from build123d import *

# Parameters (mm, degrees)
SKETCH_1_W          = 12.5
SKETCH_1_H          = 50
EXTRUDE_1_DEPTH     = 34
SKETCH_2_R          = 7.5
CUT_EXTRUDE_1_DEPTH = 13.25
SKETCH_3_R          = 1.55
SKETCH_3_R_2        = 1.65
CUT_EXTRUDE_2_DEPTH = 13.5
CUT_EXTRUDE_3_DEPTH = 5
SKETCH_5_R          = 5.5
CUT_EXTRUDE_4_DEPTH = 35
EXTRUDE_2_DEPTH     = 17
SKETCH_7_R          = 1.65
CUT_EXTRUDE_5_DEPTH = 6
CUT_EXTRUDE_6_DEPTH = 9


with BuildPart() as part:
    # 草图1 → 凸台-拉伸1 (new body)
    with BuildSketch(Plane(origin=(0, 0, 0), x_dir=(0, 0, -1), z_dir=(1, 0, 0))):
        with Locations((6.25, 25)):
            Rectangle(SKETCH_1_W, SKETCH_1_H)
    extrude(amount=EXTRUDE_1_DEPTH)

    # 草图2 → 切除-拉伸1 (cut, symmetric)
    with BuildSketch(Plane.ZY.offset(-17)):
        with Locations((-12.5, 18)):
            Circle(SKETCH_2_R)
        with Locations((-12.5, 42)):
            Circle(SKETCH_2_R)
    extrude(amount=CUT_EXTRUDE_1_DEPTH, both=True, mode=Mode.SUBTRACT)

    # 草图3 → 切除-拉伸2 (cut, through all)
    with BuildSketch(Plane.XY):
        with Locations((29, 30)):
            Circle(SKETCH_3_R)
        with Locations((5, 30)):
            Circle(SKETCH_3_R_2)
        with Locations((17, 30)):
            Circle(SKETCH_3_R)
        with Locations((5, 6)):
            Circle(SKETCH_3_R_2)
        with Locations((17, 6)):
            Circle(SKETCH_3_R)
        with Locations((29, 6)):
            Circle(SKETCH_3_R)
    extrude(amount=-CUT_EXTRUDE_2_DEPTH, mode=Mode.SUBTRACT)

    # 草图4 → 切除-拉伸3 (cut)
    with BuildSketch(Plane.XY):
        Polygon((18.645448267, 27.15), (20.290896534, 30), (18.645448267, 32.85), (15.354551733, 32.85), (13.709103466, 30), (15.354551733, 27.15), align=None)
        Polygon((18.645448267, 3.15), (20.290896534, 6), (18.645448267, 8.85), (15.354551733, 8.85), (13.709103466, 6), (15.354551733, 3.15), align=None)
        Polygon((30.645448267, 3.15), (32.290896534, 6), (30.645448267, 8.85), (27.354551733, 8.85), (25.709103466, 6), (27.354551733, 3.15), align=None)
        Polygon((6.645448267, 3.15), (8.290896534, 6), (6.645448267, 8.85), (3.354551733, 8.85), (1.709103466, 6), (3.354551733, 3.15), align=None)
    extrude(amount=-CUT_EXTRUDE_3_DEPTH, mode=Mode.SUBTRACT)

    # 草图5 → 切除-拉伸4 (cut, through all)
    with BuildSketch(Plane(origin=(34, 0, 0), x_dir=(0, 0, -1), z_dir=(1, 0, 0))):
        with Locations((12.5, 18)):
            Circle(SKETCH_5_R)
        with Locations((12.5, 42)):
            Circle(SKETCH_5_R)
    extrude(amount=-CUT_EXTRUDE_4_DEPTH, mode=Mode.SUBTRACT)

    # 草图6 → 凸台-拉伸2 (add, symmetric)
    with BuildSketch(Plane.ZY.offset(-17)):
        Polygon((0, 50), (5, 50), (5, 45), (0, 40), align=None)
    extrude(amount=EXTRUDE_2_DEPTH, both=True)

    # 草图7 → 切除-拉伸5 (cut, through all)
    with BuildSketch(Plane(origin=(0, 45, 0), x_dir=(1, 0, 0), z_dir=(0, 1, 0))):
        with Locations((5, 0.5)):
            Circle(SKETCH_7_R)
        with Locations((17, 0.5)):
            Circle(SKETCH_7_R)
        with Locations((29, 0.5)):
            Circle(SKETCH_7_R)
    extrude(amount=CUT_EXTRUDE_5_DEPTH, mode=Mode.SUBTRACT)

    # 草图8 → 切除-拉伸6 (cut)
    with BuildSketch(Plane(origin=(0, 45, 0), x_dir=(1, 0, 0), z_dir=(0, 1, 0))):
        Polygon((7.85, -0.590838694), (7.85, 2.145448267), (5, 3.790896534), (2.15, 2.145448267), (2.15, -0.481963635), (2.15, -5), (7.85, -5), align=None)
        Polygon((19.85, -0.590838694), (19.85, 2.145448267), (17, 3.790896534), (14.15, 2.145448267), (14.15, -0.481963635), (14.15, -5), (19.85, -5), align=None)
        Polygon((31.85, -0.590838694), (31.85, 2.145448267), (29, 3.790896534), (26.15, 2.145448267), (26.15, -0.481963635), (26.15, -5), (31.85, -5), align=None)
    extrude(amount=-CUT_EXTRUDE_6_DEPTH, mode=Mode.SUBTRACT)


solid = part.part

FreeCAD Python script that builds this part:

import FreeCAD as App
import Part
import Sketcher
Q = App.Units.Quantity


def add_polygon(sketch, points):
    """Adds a closed chain of lines whose ends are joined by coincident constraints."""
    first, n = sketch.GeometryCount, len(points)
    for a, b in zip(points, points[1:] + points[:1]):
        sketch.addGeometry(Part.LineSegment(App.Vector(*a, 0), App.Vector(*b, 0)), False)
    for i in range(n):
        sketch.addConstraint(Sketcher.Constraint("Coincident", first + i, 2, first + (i + 1) % n, 1))

doc = App.newDocument("Part")
params = doc.addObject("Spreadsheet::Sheet", "Params")
for row, (alias, value) in enumerate([
    ("sketch1_width", "50 mm"),
    ("sketch1_height", "12.5 mm"),
    ("pad1_length", "34 mm"),
    ("sketch2_diameter", "15 mm"),
    ("pocket1_length", "26.5 mm"),
    ("sketch3_diameter", "3.1 mm"),
    ("sketch3_diameter2", "3.3 mm"),
    ("pocket3_length", "5 mm"),
    ("sketch5_diameter", "11 mm"),
    ("sketch6_width", "10 mm"),
    ("sketch6_width2", "5 mm"),
    ("pad2_length", "34 mm"),
    ("sketch7_diameter", "3.3 mm"),
    ("sketch8_width", "5.7 mm"),
    ("pocket6_length", "9 mm"),
], start=1):
    params.set(f"A{row}", alias)
    params.set(f"B{row}", "=" + value)
    params.setAlias(f"B{row}", alias)

body = doc.addObject("PartDesign::Body", "Body")

# Sketch on YZ plane
sketch1 = doc.addObject("Sketcher::SketchObject", "Sketch")
body.addObject(sketch1)
sketch1.AttachmentSupport = (doc.YZ_Plane, [""])
sketch1.MapMode = "FlatFace"
add_polygon(sketch1, [(50, 0), (0, 0), (0, -12.5), (50, -12.5)])  # lines 0-3
sketch1.addConstraint([
    Sketcher.Constraint("Horizontal", 0),
    Sketcher.Constraint("Vertical", 1),
    Sketcher.Constraint("Horizontal", 2),
    Sketcher.Constraint("Vertical", 3),
    Sketcher.Constraint("Coincident", 0, 2, -1, 1),
    Sketcher.Constraint("DistanceX", 0, 2, 0, 1, 50.0),
    Sketcher.Constraint("DistanceY", 1, 2, 1, 1, 12.5),
])
sketch1.setExpression("Constraints[9]", "Params.sketch1_width")
sketch1.setExpression("Constraints[10]", "Params.sketch1_height")
pad1 = doc.addObject("PartDesign::Pad", "Pad")
body.addObject(pad1)
pad1.Profile = sketch1
pad1.setExpression("Length", "Params.pad1_length")

# Sketch on YZ plane
sketch2 = doc.addObject("Sketcher::SketchObject", "Sketch001")
body.addObject(sketch2)
sketch2.AttachmentSupport = (doc.YZ_Plane, [""])
sketch2.MapMode = "FlatFace"
sketch2.AttachmentOffset = App.Placement(App.Vector(0, 0, 17), App.Rotation())
sketch2.addGeometry([
    Part.Circle(App.Vector(18, -12.5, 0), App.Vector(0, 0, 1), 7.5),
    Part.Circle(App.Vector(42, -12.5, 0), App.Vector(0, 0, 1), 7.5),
], False)
sketch2.addConstraint([
    Sketcher.Constraint("Equal", 0, 1),
    Sketcher.Constraint("Horizontal", 0, 3, 1, 3),
    Sketcher.Constraint("Diameter", 0, 15.0),
    Sketcher.Constraint("DistanceX", -1, 1, 0, 3, 18.0),
    Sketcher.Constraint("DistanceX", -1, 1, 1, 3, 42.0),
    Sketcher.Constraint("DistanceY", 0, 3, -1, 1, 12.5),
])
sketch2.setExpression("Constraints[2]", "Params.sketch2_diameter")
pocket1 = doc.addObject("PartDesign::Pocket", "Pocket")
body.addObject(pocket1)
pocket1.Profile = sketch2
pocket1.setExpression("Length", "Params.pocket1_length")
pocket1.Midplane = True

# Sketch on XY plane
sketch3 = doc.addObject("Sketcher::SketchObject", "Sketch002")
body.addObject(sketch3)
sketch3.AttachmentSupport = (doc.XY_Plane, [""])
sketch3.MapMode = "FlatFace"
sketch3.addGeometry([
    Part.Circle(App.Vector(29, 30, 0), App.Vector(0, 0, 1), 1.55),  # 0
    Part.Circle(App.Vector(5, 30, 0), App.Vector(0, 0, 1), 1.65),  # 1
    Part.Circle(App.Vector(17, 30, 0), App.Vector(0, 0, 1), 1.55),  # 2
    Part.Circle(App.Vector(5, 6, 0), App.Vector(0, 0, 1), 1.65),  # 3
    Part.Circle(App.Vector(17, 6, 0), App.Vector(0, 0, 1), 1.55),  # 4
    Part.Circle(App.Vector(29, 6, 0), App.Vector(0, 0, 1), 1.55),  # 5
], False)
sketch3.addConstraint([
    Sketcher.Constraint("Equal", 0, 2),
    Sketcher.Constraint("Equal", 1, 3),
    Sketcher.Constraint("Equal", 2, 4),
    Sketcher.Constraint("Equal", 4, 5),
    Sketcher.Constraint("Horizontal", 0, 3, 1, 3),
    Sketcher.Constraint("Horizontal", 1, 3, 2, 3),
    Sketcher.Constraint("Horizontal", 3, 3, 4, 3),
    Sketcher.Constraint("Horizontal", 4, 3, 5, 3),
    Sketcher.Constraint("Vertical", 1, 3, 3, 3),
    Sketcher.Constraint("Vertical", 2, 3, 4, 3),
    Sketcher.Constraint("Vertical", 0, 3, 5, 3),
    Sketcher.Constraint("Diameter", 0, 3.1),
    Sketcher.Constraint("Diameter", 1, 3.3),
    Sketcher.Constraint("DistanceX", -1, 1, 0, 3, 29.0),
    Sketcher.Constraint("DistanceY", -1, 1, 0, 3, 30.0),
    Sketcher.Constraint("DistanceX", -1, 1, 1, 3, 5.0),
    Sketcher.Constraint("DistanceX", -1, 1, 2, 3, 17.0),
    Sketcher.Constraint("DistanceY", -1, 1, 3, 3, 6.0),
])
sketch3.setExpression("Constraints[11]", "Params.sketch3_diameter")
sketch3.setExpression("Constraints[12]", "Params.sketch3_diameter2")
pocket2 = doc.addObject("PartDesign::Pocket", "Pocket001")
body.addObject(pocket2)
pocket2.Profile = sketch3
pocket2.Type = "ThroughAll"

# Sketch on XY plane
sketch4 = doc.addObject("Sketcher::SketchObject", "Sketch003")
body.addObject(sketch4)
sketch4.AttachmentSupport = (doc.XY_Plane, [""])
sketch4.MapMode = "FlatFace"
add_polygon(sketch4, [(18.645448, 27.15), (20.290897, 30), (18.645448, 32.85), (15.354552, 32.85), (13.709103, 30), (15.354552, 27.15)])  # lines 0-5
add_polygon(sketch4, [(18.645448, 3.15), (20.290897, 6), (18.645448, 8.85), (15.354552, 8.85), (13.709103, 6), (15.354552, 3.15)])  # lines 6-11
add_polygon(sketch4, [(30.645448, 3.15), (32.290897, 6), (30.645448, 8.85), (27.354552, 8.85), (25.709103, 6), (27.354552, 3.15)])  # lines 12-17
add_polygon(sketch4, [(6.645448, 3.15), (8.290897, 6), (6.645448, 8.85), (3.354552, 8.85), (1.709103, 6), (3.354552, 3.15)])  # lines 18-23
sketch4.addConstraint([
    Sketcher.Constraint("Horizontal", 2),
    Sketcher.Constraint("Horizontal", 5),
    Sketcher.Constraint("Horizontal", 8),
    Sketcher.Constraint("Horizontal", 11),
    Sketcher.Constraint("Horizontal", 14),
    Sketcher.Constraint("Horizontal", 17),
    Sketcher.Constraint("Horizontal", 20),
    Sketcher.Constraint("Horizontal", 23),
    Sketcher.Constraint("Parallel", 0, 3),
    Sketcher.Constraint("Parallel", 1, 4),
    Sketcher.Constraint("Parallel", 3, 6),
    Sketcher.Constraint("Parallel", 4, 7),
    Sketcher.Constraint("Parallel", 6, 9),
    Sketcher.Constraint("Parallel", 7, 10),
    Sketcher.Constraint("Parallel", 9, 12),
    Sketcher.Constraint("Parallel", 10, 13),
    Sketcher.Constraint("Parallel", 12, 15),
    Sketcher.Constraint("Parallel", 13, 16),
    Sketcher.Constraint("Parallel", 15, 18),
    Sketcher.Constraint("Parallel", 16, 19),
    Sketcher.Constraint("Parallel", 18, 21),
    Sketcher.Constraint("Parallel", 19, 22),
    Sketcher.Constraint("Horizontal", 0, 2, 3, 2),
    Sketcher.Constraint("Horizontal", 6, 2, 9, 2),
    Sketcher.Constraint("Horizontal", 9, 2, 12, 2),
    Sketcher.Constraint("Horizontal", 8, 2, 13, 2),
    Sketcher.Constraint("Horizontal", 12, 2, 15, 2),
    Sketcher.Constraint("Horizontal", 11, 2, 16, 2),
    Sketcher.Constraint("Horizontal", 15, 2, 18, 2),
    Sketcher.Constraint("Horizontal", 14, 2, 19, 2),
    Sketcher.Constraint("Horizontal", 18, 2, 21, 2),
    Sketcher.Constraint("Horizontal", 17, 2, 22, 2),
    Sketcher.Constraint("Vertical", 2, 2, 4, 2),
    Sketcher.Constraint("Vertical", 1, 2, 5, 2),
    Sketcher.Constraint("Vertical", 0, 2, 6, 2),
    Sketcher.Constraint("Vertical", 5, 2, 7, 2),
    Sketcher.Constraint("Vertical", 4, 2, 8, 2),
    Sketcher.Constraint("Vertical", 8, 2, 10, 2),
    Sketcher.Constraint("Equal", 11, 14),
    Sketcher.Constraint("Equal", 17, 20),
    Sketcher.Constraint("Angle", 0, Q("60 deg")),
    Sketcher.Constraint("DistanceY", -1, 1, 0, 2, 30.0),
    Sketcher.Constraint("DistanceY", -1, 1, 6, 2, 6.0),
    Sketcher.Constraint("DistanceX", 6, 2, 12, 2, 12.0),
    Sketcher.Constraint("DistanceX", 19, 2, 7, 2, 12.0),
    Sketcher.Constraint("DistanceY", 4, 2, 2, 2, 5.7),
    Sketcher.Constraint("DistanceX", 2, 2, 2, 1, 3.290897),
    Sketcher.Constraint("DistanceX", -1, 1, 1, 2, 18.645448),
])
pocket3 = doc.addObject("PartDesign::Pocket", "Pocket002")
body.addObject(pocket3)
pocket3.Profile = sketch4
pocket3.setExpression("Length", "Params.pocket3_length")

# Sketch on YZ plane
sketch5 = doc.addObject("Sketcher::SketchObject", "Sketch004")
body.addObject(sketch5)
sketch5.AttachmentSupport = (doc.YZ_Plane, [""])
sketch5.MapMode = "FlatFace"
sketch5.AttachmentOffset = App.Placement(App.Vector(0, 0, 34), App.Rotation())
sketch5.addGeometry([
    Part.Circle(App.Vector(18, -12.5, 0), App.Vector(0, 0, 1), 5.5),
    Part.Circle(App.Vector(42, -12.5, 0), App.Vector(0, 0, 1), 5.5),
], False)
sketch5.addConstraint([
    Sketcher.Constraint("Equal", 0, 1),
    Sketcher.Constraint("Horizontal", 0, 3, 1, 3),
    Sketcher.Constraint("Diameter", 0, 11.0),
    Sketcher.Constraint("DistanceX", -1, 1, 0, 3, 18.0),
    Sketcher.Constraint("DistanceX", -1, 1, 1, 3, 42.0),
    Sketcher.Constraint("DistanceY", 0, 3, -1, 1, 12.5),
])
sketch5.setExpression("Constraints[2]", "Params.sketch5_diameter")
pocket4 = doc.addObject("PartDesign::Pocket", "Pocket003")
body.addObject(pocket4)
pocket4.Profile = sketch5
pocket4.Type = "ThroughAll"

# Sketch on YZ plane
sketch6 = doc.addObject("Sketcher::SketchObject", "Sketch005")
body.addObject(sketch6)
sketch6.AttachmentSupport = (doc.YZ_Plane, [""])
sketch6.MapMode = "FlatFace"
sketch6.AttachmentOffset = App.Placement(App.Vector(0, 0, 17), App.Rotation())
add_polygon(sketch6, [(50, 5), (50, 0), (40, 0), (45, 5)])  # lines 0-3
sketch6.addConstraint([
    Sketcher.Constraint("Vertical", 0),
    Sketcher.Constraint("Horizontal", 1),
    Sketcher.Constraint("Horizontal", 3),
    Sketcher.Constraint("PointOnObject", 0, 2, -1),
    Sketcher.Constraint("Equal", 3, 0),
    Sketcher.Constraint("DistanceX", 1, 2, 1, 1, 10.0),
    Sketcher.Constraint("DistanceX", 3, 1, 3, 2, 5.0),
    Sketcher.Constraint("DistanceX", -1, 1, 0, 2, 50.0),
])
sketch6.setExpression("Constraints[9]", "Params.sketch6_width")
sketch6.setExpression("Constraints[10]", "Params.sketch6_width2")
pad2 = doc.addObject("PartDesign::Pad", "Pad001")
body.addObject(pad2)
pad2.Profile = sketch6
pad2.setExpression("Length", "Params.pad2_length")
pad2.Midplane = True

# Sketch on XZ plane
sketch7 = doc.addObject("Sketcher::SketchObject", "Sketch006")
body.addObject(sketch7)
sketch7.AttachmentSupport = (doc.XZ_Plane, [""])
sketch7.MapMode = "FlatFace"
sketch7.AttachmentOffset = App.Placement(App.Vector(0, 0, -45), App.Rotation())
sketch7.addGeometry([
    Part.Circle(App.Vector(5, -0.5, 0), App.Vector(0, 0, 1), 1.65),
    Part.Circle(App.Vector(17, -0.5, 0), App.Vector(0, 0, 1), 1.65),
    Part.Circle(App.Vector(29, -0.5, 0), App.Vector(0, 0, 1), 1.65),
], False)
sketch7.addConstraint([
    Sketcher.Constraint("Equal", 0, 1),
    Sketcher.Constraint("Equal", 1, 2),
    Sketcher.Constraint("Horizontal", 0, 3, 1, 3),
    Sketcher.Constraint("Horizontal", 1, 3, 2, 3),
    Sketcher.Constraint("Diameter", 0, 3.3),
    Sketcher.Constraint("DistanceX", -1, 1, 0, 3, 5.0),
    Sketcher.Constraint("DistanceX", -1, 1, 1, 3, 17.0),
    Sketcher.Constraint("DistanceX", -1, 1, 2, 3, 29.0),
    Sketcher.Constraint("DistanceY", 0, 3, -1, 1, 0.5),
])
sketch7.setExpression("Constraints[4]", "Params.sketch7_diameter")
pocket5 = doc.addObject("PartDesign::Pocket", "Pocket004")
body.addObject(pocket5)
pocket5.Profile = sketch7
pocket5.Type = "ThroughAll"

# Sketch on XZ plane
sketch8 = doc.addObject("Sketcher::SketchObject", "Sketch007")
body.addObject(sketch8)
sketch8.AttachmentSupport = (doc.XZ_Plane, [""])
sketch8.MapMode = "FlatFace"
sketch8.AttachmentOffset = App.Placement(App.Vector(0, 0, -45), App.Rotation())
add_polygon(sketch8, [(7.85, -2.145448), (5, -3.790897), (2.15, -2.145448), (2.15, 5), (7.85, 5)])  # lines 0-4
add_polygon(sketch8, [(19.85, -2.145448), (17, -3.790897), (14.15, -2.145448), (14.15, 5), (19.85, 5)])  # lines 5-9
add_polygon(sketch8, [(31.85, -2.145448), (29, -3.790897), (26.15, -2.145448), (26.15, 5), (31.85, 5)])  # lines 10-14
sketch8.addConstraint([
    Sketcher.Constraint("Vertical", 2),
    Sketcher.Constraint("Horizontal", 3),
    Sketcher.Constraint("Vertical", 4),
    Sketcher.Constraint("Vertical", 7),
    Sketcher.Constraint("Horizontal", 8),
    Sketcher.Constraint("Vertical", 9),
    Sketcher.Constraint("Vertical", 12),
    Sketcher.Constraint("Horizontal", 13),
    Sketcher.Constraint("Vertical", 14),
    Sketcher.Constraint("Parallel", 0, 5),
    Sketcher.Constraint("Parallel", 1, 6),
    Sketcher.Constraint("Parallel", 5, 10),
    Sketcher.Constraint("Parallel", 6, 11),
    Sketcher.Constraint("Horizontal", 1, 2, 4, 2),
    Sketcher.Constraint("Horizontal", 0, 2, 5, 2),
    Sketcher.Constraint("Horizontal", 4, 2, 6, 2),
    Sketcher.Constraint("Horizontal", 3, 2, 7, 2),
    Sketcher.Constraint("Horizontal", 6, 2, 9, 2),
    Sketcher.Constraint("Horizontal", 5, 2, 10, 2),
    Sketcher.Constraint("Horizontal", 9, 2, 11, 2),
    Sketcher.Constraint("Horizontal", 8, 2, 12, 2),
    Sketcher.Constraint("Horizontal", 11, 2, 14, 2),
    Sketcher.Constraint("Equal", 0, 1),
    Sketcher.Constraint("Angle", 0, Q("-150 deg")),
    Sketcher.Constraint("DistanceX", 3, 1, 3, 2, 5.7),
    Sketcher.Constraint("DistanceX", -1, 1, 0, 2, 5.0),
    Sketcher.Constraint("DistanceY", -1, 1, 2, 2, 5.0),
    Sketcher.Constraint("DistanceX", -1, 1, 5, 2, 17.0),
    Sketcher.Constraint("DistanceX", -1, 1, 10, 2, 29.0),
    Sketcher.Constraint("DistanceY", 2, 1, 2, 2, 7.145448),
])
sketch8.setExpression("Constraints[39]", "Params.sketch8_width")
pocket6 = doc.addObject("PartDesign::Pocket", "Pocket005")
body.addObject(pocket6)
pocket6.Profile = sketch8
pocket6.setExpression("Length", "Params.pocket6_length")
pocket6.Reversed = True

doc.recompute()
